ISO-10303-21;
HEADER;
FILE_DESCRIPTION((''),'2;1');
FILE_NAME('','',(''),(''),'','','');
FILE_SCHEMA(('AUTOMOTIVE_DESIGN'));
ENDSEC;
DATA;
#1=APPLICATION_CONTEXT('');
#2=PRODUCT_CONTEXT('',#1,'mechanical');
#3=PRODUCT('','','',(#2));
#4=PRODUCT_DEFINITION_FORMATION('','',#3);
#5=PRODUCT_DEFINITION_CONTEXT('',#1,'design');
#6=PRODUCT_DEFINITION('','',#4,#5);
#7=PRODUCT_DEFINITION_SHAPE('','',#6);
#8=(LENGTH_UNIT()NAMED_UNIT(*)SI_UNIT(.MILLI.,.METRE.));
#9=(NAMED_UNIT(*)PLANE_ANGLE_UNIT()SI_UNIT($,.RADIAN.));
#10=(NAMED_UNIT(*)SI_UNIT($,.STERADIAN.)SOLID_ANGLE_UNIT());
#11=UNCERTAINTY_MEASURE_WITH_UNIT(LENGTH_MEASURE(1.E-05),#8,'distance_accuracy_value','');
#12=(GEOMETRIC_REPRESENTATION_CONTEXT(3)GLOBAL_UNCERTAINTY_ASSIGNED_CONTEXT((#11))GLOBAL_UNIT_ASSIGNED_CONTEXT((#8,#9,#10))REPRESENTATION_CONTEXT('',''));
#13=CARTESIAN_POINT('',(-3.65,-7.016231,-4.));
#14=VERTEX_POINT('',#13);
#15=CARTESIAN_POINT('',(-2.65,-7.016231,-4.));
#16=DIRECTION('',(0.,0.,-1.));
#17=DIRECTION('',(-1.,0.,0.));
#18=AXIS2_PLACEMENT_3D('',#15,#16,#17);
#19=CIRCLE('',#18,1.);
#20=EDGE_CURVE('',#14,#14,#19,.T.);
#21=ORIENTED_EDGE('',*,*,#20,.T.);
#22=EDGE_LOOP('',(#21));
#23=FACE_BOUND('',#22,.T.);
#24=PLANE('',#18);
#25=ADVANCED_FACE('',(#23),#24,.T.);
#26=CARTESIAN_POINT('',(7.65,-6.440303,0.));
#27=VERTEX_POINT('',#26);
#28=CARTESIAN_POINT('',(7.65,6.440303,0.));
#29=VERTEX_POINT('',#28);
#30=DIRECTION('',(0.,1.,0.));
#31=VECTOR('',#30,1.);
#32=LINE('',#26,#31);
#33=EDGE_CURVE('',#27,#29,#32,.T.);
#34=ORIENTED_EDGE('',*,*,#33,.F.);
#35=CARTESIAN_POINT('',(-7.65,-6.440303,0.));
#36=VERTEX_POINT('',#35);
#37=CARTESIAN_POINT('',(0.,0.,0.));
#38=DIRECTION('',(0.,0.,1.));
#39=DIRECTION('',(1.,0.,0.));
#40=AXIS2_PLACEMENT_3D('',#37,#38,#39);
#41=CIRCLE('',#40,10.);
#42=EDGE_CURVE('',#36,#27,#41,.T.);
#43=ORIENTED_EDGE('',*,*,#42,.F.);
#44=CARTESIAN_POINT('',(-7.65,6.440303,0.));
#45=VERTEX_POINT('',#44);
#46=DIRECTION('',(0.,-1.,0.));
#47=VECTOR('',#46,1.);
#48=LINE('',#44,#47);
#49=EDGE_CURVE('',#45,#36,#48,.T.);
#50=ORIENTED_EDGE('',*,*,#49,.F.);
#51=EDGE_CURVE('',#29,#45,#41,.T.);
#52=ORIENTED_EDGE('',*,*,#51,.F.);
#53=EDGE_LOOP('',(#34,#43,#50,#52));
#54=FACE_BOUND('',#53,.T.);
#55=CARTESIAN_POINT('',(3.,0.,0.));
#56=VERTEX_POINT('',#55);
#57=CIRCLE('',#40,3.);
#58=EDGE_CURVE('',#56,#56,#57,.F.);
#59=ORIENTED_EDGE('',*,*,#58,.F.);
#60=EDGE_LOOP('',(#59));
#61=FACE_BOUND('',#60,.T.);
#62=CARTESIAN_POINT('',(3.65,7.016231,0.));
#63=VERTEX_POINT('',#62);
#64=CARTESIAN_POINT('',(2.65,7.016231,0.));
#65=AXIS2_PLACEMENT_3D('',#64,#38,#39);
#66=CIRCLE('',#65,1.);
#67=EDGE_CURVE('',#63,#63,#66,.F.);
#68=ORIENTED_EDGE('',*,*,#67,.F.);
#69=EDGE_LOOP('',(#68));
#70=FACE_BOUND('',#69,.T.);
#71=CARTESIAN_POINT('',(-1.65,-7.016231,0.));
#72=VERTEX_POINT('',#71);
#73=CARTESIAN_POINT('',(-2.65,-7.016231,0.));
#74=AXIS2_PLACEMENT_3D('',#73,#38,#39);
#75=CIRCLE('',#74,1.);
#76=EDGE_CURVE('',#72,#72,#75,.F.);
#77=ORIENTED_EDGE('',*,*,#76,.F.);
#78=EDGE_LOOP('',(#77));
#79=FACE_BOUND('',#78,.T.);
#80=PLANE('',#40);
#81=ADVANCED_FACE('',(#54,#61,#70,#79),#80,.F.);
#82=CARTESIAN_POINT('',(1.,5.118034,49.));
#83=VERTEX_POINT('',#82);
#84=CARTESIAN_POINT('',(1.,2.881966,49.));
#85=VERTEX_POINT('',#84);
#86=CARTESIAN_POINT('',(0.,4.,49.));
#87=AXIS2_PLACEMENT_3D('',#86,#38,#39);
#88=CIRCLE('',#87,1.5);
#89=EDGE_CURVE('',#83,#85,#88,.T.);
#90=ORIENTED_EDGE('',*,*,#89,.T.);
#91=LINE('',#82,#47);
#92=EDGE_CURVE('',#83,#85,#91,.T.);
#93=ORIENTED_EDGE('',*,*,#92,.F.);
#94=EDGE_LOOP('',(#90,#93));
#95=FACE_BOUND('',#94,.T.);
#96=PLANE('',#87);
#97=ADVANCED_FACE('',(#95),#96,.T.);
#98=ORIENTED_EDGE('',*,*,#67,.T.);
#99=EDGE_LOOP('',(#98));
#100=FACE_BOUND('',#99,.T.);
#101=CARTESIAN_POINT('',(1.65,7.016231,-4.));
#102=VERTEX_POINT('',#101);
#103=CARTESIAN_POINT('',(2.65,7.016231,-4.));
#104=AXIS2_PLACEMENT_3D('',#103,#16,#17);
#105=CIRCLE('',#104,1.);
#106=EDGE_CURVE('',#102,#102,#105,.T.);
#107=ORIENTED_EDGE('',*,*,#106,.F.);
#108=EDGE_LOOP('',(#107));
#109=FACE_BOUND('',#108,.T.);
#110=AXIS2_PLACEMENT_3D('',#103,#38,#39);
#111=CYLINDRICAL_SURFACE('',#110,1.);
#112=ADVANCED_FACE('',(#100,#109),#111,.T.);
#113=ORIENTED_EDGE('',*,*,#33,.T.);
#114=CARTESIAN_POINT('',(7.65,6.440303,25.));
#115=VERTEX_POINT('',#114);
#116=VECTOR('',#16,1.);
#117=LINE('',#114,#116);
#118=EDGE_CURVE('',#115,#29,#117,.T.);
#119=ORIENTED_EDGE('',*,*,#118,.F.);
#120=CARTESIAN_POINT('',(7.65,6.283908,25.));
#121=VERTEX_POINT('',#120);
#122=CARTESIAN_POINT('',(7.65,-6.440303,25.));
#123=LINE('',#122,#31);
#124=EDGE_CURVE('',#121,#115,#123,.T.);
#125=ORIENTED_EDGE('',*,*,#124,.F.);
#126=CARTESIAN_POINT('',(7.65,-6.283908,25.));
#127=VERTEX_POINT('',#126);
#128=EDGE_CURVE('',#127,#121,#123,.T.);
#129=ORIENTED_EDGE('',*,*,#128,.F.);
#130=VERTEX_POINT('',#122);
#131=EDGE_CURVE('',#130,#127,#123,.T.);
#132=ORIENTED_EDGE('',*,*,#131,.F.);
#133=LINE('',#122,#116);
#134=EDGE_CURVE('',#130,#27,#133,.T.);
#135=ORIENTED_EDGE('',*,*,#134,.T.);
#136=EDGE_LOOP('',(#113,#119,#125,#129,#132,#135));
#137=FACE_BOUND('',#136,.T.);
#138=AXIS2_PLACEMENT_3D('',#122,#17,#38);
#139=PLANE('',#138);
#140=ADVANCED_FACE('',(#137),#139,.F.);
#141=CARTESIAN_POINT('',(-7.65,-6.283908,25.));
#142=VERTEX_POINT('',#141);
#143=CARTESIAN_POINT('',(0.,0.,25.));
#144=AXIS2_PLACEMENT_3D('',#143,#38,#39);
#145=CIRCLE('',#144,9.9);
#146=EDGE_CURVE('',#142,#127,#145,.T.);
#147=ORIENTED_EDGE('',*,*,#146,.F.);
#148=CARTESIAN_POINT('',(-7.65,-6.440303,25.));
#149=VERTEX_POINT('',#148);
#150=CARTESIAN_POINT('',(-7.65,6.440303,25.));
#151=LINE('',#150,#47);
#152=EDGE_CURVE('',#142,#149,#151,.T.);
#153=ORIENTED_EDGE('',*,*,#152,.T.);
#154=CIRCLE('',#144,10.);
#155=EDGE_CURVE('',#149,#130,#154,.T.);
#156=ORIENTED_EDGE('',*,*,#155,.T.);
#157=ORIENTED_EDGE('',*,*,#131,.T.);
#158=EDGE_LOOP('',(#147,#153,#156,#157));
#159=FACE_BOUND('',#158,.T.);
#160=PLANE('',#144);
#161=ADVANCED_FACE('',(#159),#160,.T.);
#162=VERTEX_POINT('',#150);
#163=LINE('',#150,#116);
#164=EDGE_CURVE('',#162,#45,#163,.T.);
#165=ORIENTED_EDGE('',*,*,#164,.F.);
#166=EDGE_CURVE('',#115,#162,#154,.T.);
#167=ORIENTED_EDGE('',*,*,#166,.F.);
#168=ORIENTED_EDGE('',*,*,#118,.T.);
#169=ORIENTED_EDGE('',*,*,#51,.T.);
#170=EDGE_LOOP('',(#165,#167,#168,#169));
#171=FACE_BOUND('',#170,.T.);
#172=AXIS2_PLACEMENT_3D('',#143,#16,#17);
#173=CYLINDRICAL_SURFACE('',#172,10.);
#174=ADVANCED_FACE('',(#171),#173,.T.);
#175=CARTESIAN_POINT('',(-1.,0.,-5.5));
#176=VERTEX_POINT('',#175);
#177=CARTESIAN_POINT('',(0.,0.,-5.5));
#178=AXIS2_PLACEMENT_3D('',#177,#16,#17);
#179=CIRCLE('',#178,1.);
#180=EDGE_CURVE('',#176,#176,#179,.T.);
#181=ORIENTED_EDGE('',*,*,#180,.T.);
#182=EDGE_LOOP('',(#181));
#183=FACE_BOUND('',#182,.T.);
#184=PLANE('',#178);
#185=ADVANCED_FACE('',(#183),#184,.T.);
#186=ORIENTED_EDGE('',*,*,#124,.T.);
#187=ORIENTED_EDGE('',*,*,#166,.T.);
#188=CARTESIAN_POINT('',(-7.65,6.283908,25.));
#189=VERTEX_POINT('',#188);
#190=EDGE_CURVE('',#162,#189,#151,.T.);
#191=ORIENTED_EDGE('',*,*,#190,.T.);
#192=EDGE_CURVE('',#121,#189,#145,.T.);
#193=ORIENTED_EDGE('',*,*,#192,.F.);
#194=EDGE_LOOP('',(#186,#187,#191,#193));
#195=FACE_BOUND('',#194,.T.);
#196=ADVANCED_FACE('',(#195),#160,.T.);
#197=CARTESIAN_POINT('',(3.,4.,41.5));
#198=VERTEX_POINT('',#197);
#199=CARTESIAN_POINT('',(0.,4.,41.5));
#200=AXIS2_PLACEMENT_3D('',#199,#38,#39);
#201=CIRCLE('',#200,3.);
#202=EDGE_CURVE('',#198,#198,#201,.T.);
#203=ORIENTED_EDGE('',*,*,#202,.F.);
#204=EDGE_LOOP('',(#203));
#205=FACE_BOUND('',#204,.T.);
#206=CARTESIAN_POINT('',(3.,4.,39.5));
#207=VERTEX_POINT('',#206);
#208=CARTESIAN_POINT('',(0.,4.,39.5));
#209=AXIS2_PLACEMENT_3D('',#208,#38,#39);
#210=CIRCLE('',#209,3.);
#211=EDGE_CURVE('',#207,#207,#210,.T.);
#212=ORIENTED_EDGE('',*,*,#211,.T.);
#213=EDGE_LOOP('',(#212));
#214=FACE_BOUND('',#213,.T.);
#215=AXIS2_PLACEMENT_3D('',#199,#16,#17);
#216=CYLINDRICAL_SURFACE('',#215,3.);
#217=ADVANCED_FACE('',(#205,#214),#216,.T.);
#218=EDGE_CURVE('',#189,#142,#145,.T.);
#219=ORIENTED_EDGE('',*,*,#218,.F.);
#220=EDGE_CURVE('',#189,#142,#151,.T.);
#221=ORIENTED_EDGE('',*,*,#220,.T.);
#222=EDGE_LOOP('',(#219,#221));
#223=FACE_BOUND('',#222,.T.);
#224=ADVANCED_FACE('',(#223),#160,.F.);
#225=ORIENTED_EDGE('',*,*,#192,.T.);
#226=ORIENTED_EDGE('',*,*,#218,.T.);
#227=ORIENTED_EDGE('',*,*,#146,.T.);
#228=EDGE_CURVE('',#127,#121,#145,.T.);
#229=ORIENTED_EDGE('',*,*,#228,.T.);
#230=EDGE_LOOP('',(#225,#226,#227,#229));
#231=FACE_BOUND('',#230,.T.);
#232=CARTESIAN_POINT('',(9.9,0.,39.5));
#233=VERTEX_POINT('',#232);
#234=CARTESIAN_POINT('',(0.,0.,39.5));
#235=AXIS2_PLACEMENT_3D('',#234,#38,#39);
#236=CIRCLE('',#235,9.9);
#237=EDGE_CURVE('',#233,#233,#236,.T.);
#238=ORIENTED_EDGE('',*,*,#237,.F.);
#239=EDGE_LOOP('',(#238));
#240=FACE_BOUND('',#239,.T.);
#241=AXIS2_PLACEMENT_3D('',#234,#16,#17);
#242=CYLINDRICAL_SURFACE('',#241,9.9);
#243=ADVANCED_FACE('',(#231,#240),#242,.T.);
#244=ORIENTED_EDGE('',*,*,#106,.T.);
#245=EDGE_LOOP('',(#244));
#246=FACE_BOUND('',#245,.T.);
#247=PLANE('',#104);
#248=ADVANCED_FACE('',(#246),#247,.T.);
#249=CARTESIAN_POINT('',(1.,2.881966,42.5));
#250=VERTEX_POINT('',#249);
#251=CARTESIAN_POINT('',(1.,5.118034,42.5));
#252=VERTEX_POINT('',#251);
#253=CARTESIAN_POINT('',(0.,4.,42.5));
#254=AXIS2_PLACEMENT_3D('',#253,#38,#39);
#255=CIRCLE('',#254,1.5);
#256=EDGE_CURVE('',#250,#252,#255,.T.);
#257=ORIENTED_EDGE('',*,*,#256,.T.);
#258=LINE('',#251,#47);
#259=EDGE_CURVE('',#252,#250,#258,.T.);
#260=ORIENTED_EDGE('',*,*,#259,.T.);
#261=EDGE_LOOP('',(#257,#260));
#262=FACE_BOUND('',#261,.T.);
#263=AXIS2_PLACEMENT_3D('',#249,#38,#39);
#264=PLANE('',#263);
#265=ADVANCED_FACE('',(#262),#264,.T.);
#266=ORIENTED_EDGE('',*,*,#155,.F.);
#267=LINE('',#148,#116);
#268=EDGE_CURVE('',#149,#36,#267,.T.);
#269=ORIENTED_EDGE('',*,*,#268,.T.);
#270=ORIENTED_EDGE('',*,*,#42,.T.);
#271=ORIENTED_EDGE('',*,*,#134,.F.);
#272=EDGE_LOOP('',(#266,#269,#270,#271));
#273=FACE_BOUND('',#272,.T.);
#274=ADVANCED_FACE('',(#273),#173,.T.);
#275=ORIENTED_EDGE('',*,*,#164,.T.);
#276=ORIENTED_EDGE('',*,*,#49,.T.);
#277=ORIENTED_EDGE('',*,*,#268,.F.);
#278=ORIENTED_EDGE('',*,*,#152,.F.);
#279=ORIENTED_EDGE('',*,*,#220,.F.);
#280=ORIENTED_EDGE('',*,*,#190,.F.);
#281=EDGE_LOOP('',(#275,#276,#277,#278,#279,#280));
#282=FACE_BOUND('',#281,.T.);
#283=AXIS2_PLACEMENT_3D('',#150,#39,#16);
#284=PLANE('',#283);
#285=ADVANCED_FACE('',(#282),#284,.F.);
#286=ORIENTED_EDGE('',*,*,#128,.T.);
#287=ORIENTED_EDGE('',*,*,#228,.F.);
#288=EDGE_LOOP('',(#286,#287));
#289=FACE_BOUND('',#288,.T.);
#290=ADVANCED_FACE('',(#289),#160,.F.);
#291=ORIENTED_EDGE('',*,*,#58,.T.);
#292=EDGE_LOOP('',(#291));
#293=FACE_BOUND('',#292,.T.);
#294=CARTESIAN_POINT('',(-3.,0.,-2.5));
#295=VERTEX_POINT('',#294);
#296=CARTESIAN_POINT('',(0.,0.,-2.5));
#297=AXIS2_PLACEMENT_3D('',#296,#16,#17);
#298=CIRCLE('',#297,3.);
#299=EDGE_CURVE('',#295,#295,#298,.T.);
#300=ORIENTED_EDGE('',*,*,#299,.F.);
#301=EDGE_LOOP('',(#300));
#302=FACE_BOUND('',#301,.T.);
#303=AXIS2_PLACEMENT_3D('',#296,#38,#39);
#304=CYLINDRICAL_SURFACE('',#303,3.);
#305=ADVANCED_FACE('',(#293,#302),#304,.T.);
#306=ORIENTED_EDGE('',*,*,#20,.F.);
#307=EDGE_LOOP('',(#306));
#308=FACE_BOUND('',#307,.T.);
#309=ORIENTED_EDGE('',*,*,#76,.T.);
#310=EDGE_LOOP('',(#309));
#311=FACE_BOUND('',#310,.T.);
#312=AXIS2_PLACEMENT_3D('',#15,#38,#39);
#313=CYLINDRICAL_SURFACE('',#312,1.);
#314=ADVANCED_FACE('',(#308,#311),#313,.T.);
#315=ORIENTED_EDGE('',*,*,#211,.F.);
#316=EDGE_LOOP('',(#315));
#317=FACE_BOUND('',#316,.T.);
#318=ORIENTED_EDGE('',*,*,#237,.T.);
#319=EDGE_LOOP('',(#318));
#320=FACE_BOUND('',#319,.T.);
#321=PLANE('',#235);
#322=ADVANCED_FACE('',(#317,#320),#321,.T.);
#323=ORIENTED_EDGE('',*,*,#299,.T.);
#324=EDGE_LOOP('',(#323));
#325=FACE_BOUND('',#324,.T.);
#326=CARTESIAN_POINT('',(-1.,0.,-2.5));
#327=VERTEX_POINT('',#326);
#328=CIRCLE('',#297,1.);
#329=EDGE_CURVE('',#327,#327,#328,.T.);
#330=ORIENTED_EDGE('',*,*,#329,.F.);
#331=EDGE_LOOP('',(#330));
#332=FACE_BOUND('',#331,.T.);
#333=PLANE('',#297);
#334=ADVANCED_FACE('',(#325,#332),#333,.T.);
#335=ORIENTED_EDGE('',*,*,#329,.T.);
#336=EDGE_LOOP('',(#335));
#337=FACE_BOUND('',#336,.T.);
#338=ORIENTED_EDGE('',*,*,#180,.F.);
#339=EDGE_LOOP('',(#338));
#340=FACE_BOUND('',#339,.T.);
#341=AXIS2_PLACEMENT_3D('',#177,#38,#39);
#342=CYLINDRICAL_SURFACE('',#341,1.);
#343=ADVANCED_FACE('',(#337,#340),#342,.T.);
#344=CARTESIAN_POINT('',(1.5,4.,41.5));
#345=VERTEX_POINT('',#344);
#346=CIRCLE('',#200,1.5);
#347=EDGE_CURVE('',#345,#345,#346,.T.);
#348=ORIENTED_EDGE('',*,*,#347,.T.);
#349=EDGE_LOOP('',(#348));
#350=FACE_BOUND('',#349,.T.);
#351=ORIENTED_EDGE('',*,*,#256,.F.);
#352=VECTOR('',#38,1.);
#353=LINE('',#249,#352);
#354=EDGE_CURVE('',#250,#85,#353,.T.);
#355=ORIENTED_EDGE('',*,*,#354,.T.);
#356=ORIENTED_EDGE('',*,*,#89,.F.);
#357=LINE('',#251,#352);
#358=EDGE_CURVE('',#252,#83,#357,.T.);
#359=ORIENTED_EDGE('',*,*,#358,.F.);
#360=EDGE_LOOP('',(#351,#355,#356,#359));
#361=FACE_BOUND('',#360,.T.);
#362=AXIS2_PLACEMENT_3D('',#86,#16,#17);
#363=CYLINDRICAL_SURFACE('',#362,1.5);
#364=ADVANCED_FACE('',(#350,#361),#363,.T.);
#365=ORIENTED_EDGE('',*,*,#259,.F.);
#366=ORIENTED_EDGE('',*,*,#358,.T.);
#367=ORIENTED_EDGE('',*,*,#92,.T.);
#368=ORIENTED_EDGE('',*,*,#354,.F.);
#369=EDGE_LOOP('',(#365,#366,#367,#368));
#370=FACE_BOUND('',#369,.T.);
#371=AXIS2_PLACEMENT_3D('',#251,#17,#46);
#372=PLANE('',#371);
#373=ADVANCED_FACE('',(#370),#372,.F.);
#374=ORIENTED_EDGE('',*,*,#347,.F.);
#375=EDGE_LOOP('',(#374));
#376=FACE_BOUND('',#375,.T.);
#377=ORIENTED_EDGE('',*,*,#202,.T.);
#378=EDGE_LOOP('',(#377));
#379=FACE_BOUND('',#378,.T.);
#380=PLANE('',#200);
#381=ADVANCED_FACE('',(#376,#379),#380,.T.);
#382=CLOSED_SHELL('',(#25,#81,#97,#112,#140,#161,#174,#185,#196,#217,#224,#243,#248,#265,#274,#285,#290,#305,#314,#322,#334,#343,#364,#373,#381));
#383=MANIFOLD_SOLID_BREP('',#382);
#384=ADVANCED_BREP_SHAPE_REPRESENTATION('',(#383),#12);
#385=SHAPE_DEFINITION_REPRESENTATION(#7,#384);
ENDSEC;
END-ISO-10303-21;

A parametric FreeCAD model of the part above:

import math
import FreeCAD as App
import Part
import Sketcher
from FreeCAD import Vector

doc = App.newDocument("Part")
body = doc.addObject("PartDesign::Body", "Body")

# Sketch on XY plane
sketch1 = body.newObject("Sketcher::SketchObject", "Sketch")
sketch1.AttachmentSupport = (doc.getObject("XY_Plane"), [""])
sketch1.MapMode = "FlatFace"
sketch1.addGeometry(Part.LineSegment(Vector(-8, 6, 0), Vector(-8, -6, 0)), False)
sketch1.addGeometry(Part.ArcOfCircle(Part.Circle(Vector(0, 0, 0), Vector(0, 0, 1), 10), math.radians(-140), math.radians(-40)), False)
sketch1.addGeometry(Part.LineSegment(Vector(8, -6, 0), Vector(8, 6, 0)), False)
sketch1.addGeometry(Part.ArcOfCircle(Part.Circle(Vector(0, 0, 0), Vector(0, 0, 1), 10), math.radians(40), math.radians(140)), False)
sketch1.addConstraint(Sketcher.Constraint("Coincident", 0, 2, 1, 1))
sketch1.addConstraint(Sketcher.Constraint("Coincident", 1, 2, 2, 1))
sketch1.addConstraint(Sketcher.Constraint("Coincident", 2, 2, 3, 1))
sketch1.addConstraint(Sketcher.Constraint("Coincident", 3, 2, 0, 1))
sketch1.addConstraint(Sketcher.Constraint("Vertical", 0))
sketch1.addConstraint(Sketcher.Constraint("Vertical", 2))
sketch1.addConstraint(Sketcher.Constraint("Coincident", 1, 3, -1, 1))
sketch1.addConstraint(Sketcher.Constraint("Coincident", 3, 3, -1, 1))
sketch1.addConstraint(Sketcher.Constraint("Equal", 1, 3))
sketch1.addConstraint(Sketcher.Constraint("Horizontal", 0, 2, 1, 2))
sketch1.addConstraint(Sketcher.Constraint("Radius", 1, 10.0))
sketch1.addConstraint(Sketcher.Constraint("DistanceX", 0, 2, 1, 2, 15.3))
pad1 = body.newObject("PartDesign::Pad", "Pad")
pad1.Profile = sketch1
pad1.Length = 25

# Sketch on XY plane
sketch2 = body.newObject("Sketcher::SketchObject", "Sketch001")
sketch2.AttachmentSupport = (doc.getObject("XY_Plane"), [""])
sketch2.MapMode = "FlatFace"
sketch2.AttachmentOffset = App.Placement(Vector(0, 0, 25), App.Rotation())
sketch2.addGeometry(Part.Circle(Vector(0, 0, 0), Vector(0, 0, 1), 10), False)
sketch2.addConstraint(Sketcher.Constraint("Coincident", 0, 3, -1, 1))
sketch2.addConstraint(Sketcher.Constraint("Diameter", 0, 19.8))
pad2 = body.newObject("PartDesign::Pad", "Pad001")
pad2.Profile = sketch2
pad2.Length = 14.5

# Sketch on XY plane
sketch3 = body.newObject("Sketcher::SketchObject", "Sketch002")
sketch3.AttachmentSupport = (doc.getObject("XY_Plane"), [""])
sketch3.MapMode = "FlatFace"
sketch3.addGeometry(Part.Circle(Vector(0, 0, 0), Vector(0, 0, 1), 3), False)
sketch3.addConstraint(Sketcher.Constraint("Coincident", 0, 3, -1, 1))
sketch3.addConstraint(Sketcher.Constraint("Diameter", 0, 6.0))
pad3 = body.newObject("PartDesign::Pad", "Pad002")
pad3.Profile = sketch3
pad3.Length = 2.5
pad3.Reversed = True

# Sketch on XY plane
sketch4 = body.newObject("Sketcher::SketchObject", "Sketch003")
sketch4.AttachmentSupport = (doc.getObject("XY_Plane"), [""])
sketch4.MapMode = "FlatFace"
sketch4.AttachmentOffset = App.Placement(Vector(0, 0, -2.5), App.Rotation())
sketch4.addGeometry(Part.Circle(Vector(0, 0, 0), Vector(0, 0, 1), 1), False)
sketch4.addConstraint(Sketcher.Constraint("Coincident", 0, 3, -1, 1))
sketch4.addConstraint(Sketcher.Constraint("Diameter", 0, 2.0))
pad4 = body.newObject("PartDesign::Pad", "Pad003")
pad4.Profile = sketch4
pad4.Length = 3
pad4.Reversed = True

# Sketch on XY plane
sketch5 = body.newObject("Sketcher::SketchObject", "Sketch004")
sketch5.AttachmentSupport = (doc.getObject("XY_Plane"), [""])
sketch5.MapMode = "FlatFace"
sketch5.addGeometry(Part.Circle(Vector(2.6, 7, 0), Vector(0, 0, 1), 1), False)
sketch5.addGeometry(Part.Circle(Vector(-2.6, -7, 0), Vector(0, 0, 1), 1), False)
sketch5.addConstraint(Sketcher.Constraint("Equal", 0, 1))
sketch5.addConstraint(Sketcher.Constraint("Symmetric", 0, 3, 1, 3, -1, 1))
sketch5.addConstraint(Sketcher.Constraint("Diameter", 0, 2.0))
sketch5.addConstraint(Sketcher.Constraint("DistanceX", 1, 3, 0, 3, 5.3))
sketch5.addConstraint(Sketcher.Constraint("DistanceY", -1, 1, 0, 3, 7.016231))
pad5 = body.newObject("PartDesign::Pad", "Pad004")
pad5.Profile = sketch5
pad5.Length = 4
pad5.Reversed = True

# Sketch on XY plane
sketch6 = body.newObject("Sketcher::SketchObject", "Sketch005")
sketch6.AttachmentSupport = (doc.getObject("XY_Plane"), [""])
sketch6.MapMode = "FlatFace"
sketch6.AttachmentOffset = App.Placement(Vector(0, 0, 39.5), App.Rotation())
sketch6.addGeometry(Part.Circle(Vector(0, 4, 0), Vector(0, 0, 1), 3), False)
sketch6.addConstraint(Sketcher.Constraint("PointOnObject", 0, 3, -2))
sketch6.addConstraint(Sketcher.Constraint("Diameter", 0, 6.0))
sketch6.addConstraint(Sketcher.Constraint("DistanceY", -1, 1, 0, 3, 4.0))
pad6 = body.newObject("PartDesign::Pad", "Pad005")
pad6.Profile = sketch6
pad6.Length = 2

# Sketch on XY plane
sketch7 = body.newObject("Sketcher::SketchObject", "Sketch006")
sketch7.AttachmentSupport = (doc.getObject("XY_Plane"), [""])
sketch7.MapMode = "FlatFace"
sketch7.AttachmentOffset = App.Placement(Vector(0, 0, 41.5), App.Rotation())
sketch7.addGeometry(Part.Circle(Vector(0, 4, 0), Vector(0, 0, 1), 1.5), False)
sketch7.addConstraint(Sketcher.Constraint("PointOnObject", 0, 3, -2))
sketch7.addConstraint(Sketcher.Constraint("Diameter", 0, 3.0))
sketch7.addConstraint(Sketcher.Constraint("DistanceY", -1, 1, 0, 3, 4.0))
pad7 = body.newObject("PartDesign::Pad", "Pad006")
pad7.Profile = sketch7
pad7.Length = 7.5

# Sketch on XY plane
sketch8 = body.newObject("Sketcher::SketchObject", "Sketch007")
sketch8.AttachmentSupport = (doc.getObject("XY_Plane"), [""])
sketch8.MapMode = "FlatFace"
sketch8.AttachmentOffset = App.Placement(Vector(0, 0, 49), App.Rotation())
sketch8.addGeometry(Part.LineSegment(Vector(1, 5.1, 0), Vector(1, 2.9, 0)), False)
sketch8.addGeometry(Part.LineSegment(Vector(1, 2.9, 0), Vector(1.5, 2.9, 0)), False)
sketch8.addGeometry(Part.LineSegment(Vector(1.5, 2.9, 0), Vector(1.5, 5.1, 0)), False)
sketch8.addGeometry(Part.LineSegment(Vector(1.5, 5.1, 0), Vector(1, 5.1, 0)), False)
sketch8.addConstraint(Sketcher.Constraint("Coincident", 0, 2, 1, 1))
sketch8.addConstraint(Sketcher.Constraint("Coincident", 1, 2, 2, 1))
sketch8.addConstraint(Sketcher.Constraint("Coincident", 2, 2, 3, 1))
sketch8.addConstraint(Sketcher.Constraint("Coincident", 3, 2, 0, 1))
sketch8.addConstraint(Sketcher.Constraint("Vertical", 0))
sketch8.addConstraint(Sketcher.Constraint("Horizontal", 1))
sketch8.addConstraint(Sketcher.Constraint("Vertical", 2))
sketch8.addConstraint(Sketcher.Constraint("Horizontal", 3))
sketch8.addConstraint(Sketcher.Constraint("DistanceX", 1, 1, 1, 2, 0.5))
sketch8.addConstraint(Sketcher.Constraint("DistanceX", -1, 1, 0, 2, 1.0))
sketch8.addConstraint(Sketcher.Constraint("DistanceY", 0, 2, 0, 1, 2.236068))
sketch8.addConstraint(Sketcher.Constraint("DistanceY", -1, 1, 0, 2, 2.881966))
pocket1 = body.newObject("PartDesign::Pocket", "Pocket")
pocket1.Profile = sketch8
pocket1.Length = 6.5

doc.recompute()
